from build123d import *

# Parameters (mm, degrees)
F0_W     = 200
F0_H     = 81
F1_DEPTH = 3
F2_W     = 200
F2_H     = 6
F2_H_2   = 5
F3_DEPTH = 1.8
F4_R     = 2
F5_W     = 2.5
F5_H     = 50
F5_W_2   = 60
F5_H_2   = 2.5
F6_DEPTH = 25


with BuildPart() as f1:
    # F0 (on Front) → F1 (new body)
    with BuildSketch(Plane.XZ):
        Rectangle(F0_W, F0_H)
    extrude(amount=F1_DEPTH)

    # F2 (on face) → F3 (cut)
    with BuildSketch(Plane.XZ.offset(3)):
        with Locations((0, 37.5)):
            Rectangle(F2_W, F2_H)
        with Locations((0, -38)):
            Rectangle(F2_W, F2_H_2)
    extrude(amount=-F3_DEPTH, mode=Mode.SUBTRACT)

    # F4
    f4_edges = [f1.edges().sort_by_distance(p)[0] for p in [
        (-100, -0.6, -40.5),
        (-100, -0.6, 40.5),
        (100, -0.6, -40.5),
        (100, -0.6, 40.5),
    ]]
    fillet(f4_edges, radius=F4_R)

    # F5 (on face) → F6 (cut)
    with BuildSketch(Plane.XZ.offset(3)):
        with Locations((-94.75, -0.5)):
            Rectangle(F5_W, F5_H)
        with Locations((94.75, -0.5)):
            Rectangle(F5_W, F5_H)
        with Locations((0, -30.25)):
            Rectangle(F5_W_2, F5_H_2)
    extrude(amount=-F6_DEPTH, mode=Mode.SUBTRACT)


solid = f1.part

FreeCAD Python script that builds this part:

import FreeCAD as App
import Part
import Sketcher

V = App.Vector
Q = App.Units.Quantity


def edges_at(feature, points):
    """Names of the edges that pass closest to the given points."""
    edges = feature.Shape.Edges
    near = lambda p: min(range(len(edges)), key=lambda i: edges[i].distToShape(Part.Vertex(*p))[0])
    return sorted({f"Edge{near(p) + 1}" for p in points})

doc = App.newDocument("Part")
params = doc.addObject("Spreadsheet::Sheet", "Params")
for row, (alias, value) in enumerate([
    ("sketch1_width", "200 mm"),
    ("sketch1_height", "81 mm"),
    ("pad1_length", "3 mm"),
    ("sketch2_width", "200 mm"),
    ("sketch2_height", "6 mm"),
    ("sketch2_height2", "5 mm"),
    ("pocket1_length", "1.8 mm"),
    ("fillet_radius", "2 mm"),
    ("sketch3_width", "60 mm"),
    ("sketch3_height", "50 mm"),
    ("sketch3_width2", "2.5 mm"),
    ("pocket2_length", "25 mm"),
], start=1):
    params.set(f"A{row}", alias)
    params.set(f"B{row}", "=" + value)
    params.setAlias(f"B{row}", alias)

body = doc.addObject("PartDesign::Body", "Body")

# Sketch on XZ plane
sketch1 = body.newObject("Sketcher::SketchObject", "Sketch")
sketch1.AttachmentSupport = (doc.getObject("XZ_Plane"), [""])
sketch1.MapMode = "FlatFace"
sketch1.addGeometry([
    Part.LineSegment(V(-100, 40.5, 0), V(-100, -40.5, 0)),
    Part.LineSegment(V(-100, -40.5, 0), V(100, -40.5, 0)),
    Part.LineSegment(V(100, -40.5, 0), V(100, 40.5, 0)),
    Part.LineSegment(V(100, 40.5, 0), V(-100, 40.5, 0)),
], False)
sketch1.addConstraint([
    Sketcher.Constraint("Coincident", 0, 2, 1, 1),
    Sketcher.Constraint("Coincident", 1, 2, 2, 1),
    Sketcher.Constraint("Coincident", 2, 2, 3, 1),
    Sketcher.Constraint("Coincident", 3, 2, 0, 1),
    Sketcher.Constraint("Vertical", 0),
    Sketcher.Constraint("Horizontal", 1),
    Sketcher.Constraint("Vertical", 2),
    Sketcher.Constraint("Horizontal", 3),
    Sketcher.Constraint("Symmetric", 0, 2, 2, 2, -1, 1),
    Sketcher.Constraint("DistanceX", 1, 1, 1, 2, Q("200 mm")),
    Sketcher.Constraint("DistanceY", 0, 2, 0, 1, Q("81 mm")),
])
sketch1.setExpression("Constraints[9]", "Params.sketch1_width")
sketch1.setExpression("Constraints[10]", "Params.sketch1_height")
pad1 = body.newObject("PartDesign::Pad", "Pad")
pad1.Profile = sketch1
pad1.setExpression("Length", "Params.pad1_length")

# Sketch on XZ plane
sketch2 = body.newObject("Sketcher::SketchObject", "Sketch001")
sketch2.AttachmentSupport = (doc.getObject("XZ_Plane"), [""])
sketch2.MapMode = "FlatFace"
sketch2.AttachmentOffset = App.Placement(V(0, 0, 3), App.Rotation())
sketch2.addGeometry([
    Part.LineSegment(V(-100, 40.5, 0), V(-100, 34.5, 0)),  # 0
    Part.LineSegment(V(-100, 34.5, 0), V(100, 34.5, 0)),  # 1
    Part.LineSegment(V(100, 34.5, 0), V(100, 40.5, 0)),  # 2
    Part.LineSegment(V(100, 40.5, 0), V(-100, 40.5, 0)),  # 3
    Part.LineSegment(V(-100, -35.5, 0), V(-100, -40.5, 0)),  # 4
    Part.LineSegment(V(-100, -40.5, 0), V(100, -40.5, 0)),  # 5
    Part.LineSegment(V(100, -40.5, 0), V(100, -35.5, 0)),  # 6
    Part.LineSegment(V(100, -35.5, 0), V(-100, -35.5, 0)),  # 7
], False)
sketch2.addConstraint([
    Sketcher.Constraint("Coincident", 0, 2, 1, 1),
    Sketcher.Constraint("Coincident", 1, 2, 2, 1),
    Sketcher.Constraint("Coincident", 2, 2, 3, 1),
    Sketcher.Constraint("Coincident", 3, 2, 0, 1),
    Sketcher.Constraint("Coincident", 4, 2, 5, 1),
    Sketcher.Constraint("Coincident", 5, 2, 6, 1),
    Sketcher.Constraint("Coincident", 6, 2, 7, 1),
    Sketcher.Constraint("Coincident", 7, 2, 4, 1),
    Sketcher.Constraint("Vertical", 0),
    Sketcher.Constraint("Horizontal", 1),
    Sketcher.Constraint("Vertical", 2),
    Sketcher.Constraint("Horizontal", 3),
    Sketcher.Constraint("Vertical", 4),
    Sketcher.Constraint("Horizontal", 5),
    Sketcher.Constraint("Vertical", 6),
    Sketcher.Constraint("Horizontal", 7),
    Sketcher.Constraint("Symmetric", 2, 2, 4, 2, -1, 1),
    Sketcher.Constraint("Vertical", 3, 2, 4, 2),
    Sketcher.Constraint("Vertical", 2, 2, 5, 2),
    Sketcher.Constraint("DistanceX", 1, 1, 1, 2, Q("200 mm")),
    Sketcher.Constraint("DistanceY", 0, 2, 0, 1, Q("6 mm")),
    Sketcher.Constraint("DistanceY", 4, 2, 4, 1, Q("5 mm")),
    Sketcher.Constraint("DistanceY", 4, 2, 0, 2, Q("75 mm")),
])
sketch2.setExpression("Constraints[19]", "Params.sketch2_width")
sketch2.setExpression("Constraints[20]", "Params.sketch2_height")
sketch2.setExpression("Constraints[21]", "Params.sketch2_height2")
pocket1 = body.newObject("PartDesign::Pocket", "Pocket")
pocket1.Profile = sketch2
pocket1.setExpression("Length", "Params.pocket1_length")
doc.recompute()

fillet = body.newObject("PartDesign::Fillet", "Fillet")
fillet.Base = (pocket1, edges_at(pocket1, [
    (-100, -0.6, -40.5),
    (-100, -0.6, 40.5),
    (100, -0.6, -40.5),
    (100, -0.6, 40.5),
]))
fillet.setExpression("Radius", "Params.fillet_radius")

# Sketch on XZ plane
sketch3 = body.newObject("Sketcher::SketchObject", "Sketch002")
sketch3.AttachmentSupport = (doc.getObject("XZ_Plane"), [""])
sketch3.MapMode = "FlatFace"
sketch3.AttachmentOffset = App.Placement(V(0, 0, 3), App.Rotation())
sketch3.addGeometry([
    Part.LineSegment(V(-96, 24.5, 0), V(-96, -25.5, 0)),  # 0
    Part.LineSegment(V(-96, -25.5, 0), V(-93.5, -25.5, 0)),  # 1
    Part.LineSegment(V(-93.5, -25.5, 0), V(-93.5, 24.5, 0)),  # 2
    Part.LineSegment(V(-93.5, 24.5, 0), V(-96, 24.5, 0)),  # 3
    Part.LineSegment(V(93.5, 24.5, 0), V(93.5, -25.5, 0)),  # 4
    Part.LineSegment(V(93.5, -25.5, 0), V(96, -25.5, 0)),  # 5
    Part.LineSegment(V(96, -25.5, 0), V(96, 24.5, 0)),  # 6
    Part.LineSegment(V(96, 24.5, 0), V(93.5, 24.5, 0)),  # 7
    Part.LineSegment(V(-30, -29, 0), V(-30, -31.5, 0)),  # 8
    Part.LineSegment(V(-30, -31.5, 0), V(30, -31.5, 0)),  # 9
    Part.LineSegment(V(30, -31.5, 0), V(30, -29, 0)),  # 10
    Part.LineSegment(V(30, -29, 0), V(-30, -29, 0)),  # 11
], False)
sketch3.addConstraint([
    Sketcher.Constraint("Coincident", 0, 2, 1, 1),
    Sketcher.Constraint("Coincident", 1, 2, 2, 1),
    Sketcher.Constraint("Coincident", 2, 2, 3, 1),
    Sketcher.Constraint("Coincident", 3, 2, 0, 1),
    Sketcher.Constraint("Coincident", 4, 2, 5, 1),
    Sketcher.Constraint("Coincident", 5, 2, 6, 1),
    Sketcher.Constraint("Coincident", 6, 2, 7, 1),
    Sketcher.Constraint("Coincident", 7, 2, 4, 1),
    Sketcher.Constraint("Coincident", 8, 2, 9, 1),
    Sketcher.Constraint("Coincident", 9, 2, 10, 1),
    Sketcher.Constraint("Coincident", 10, 2, 11, 1),
    Sketcher.Constraint("Coincident", 11, 2, 8, 1),
    Sketcher.Constraint("Vertical", 0),
    Sketcher.Constraint("Horizontal", 1),
    Sketcher.Constraint("Vertical", 2),
    Sketcher.Constraint("Horizontal", 3),
    Sketcher.Constraint("Vertical", 4),
    Sketcher.Constraint("Horizontal", 5),
    Sketcher.Constraint("Vertical", 6),
    Sketcher.Constraint("Horizontal", 7),
    Sketcher.Constraint("Vertical", 8),
    Sketcher.Constraint("Horizontal", 9),
    Sketcher.Constraint("Vertical", 10),
    Sketcher.Constraint("Horizontal", 11),
    Sketcher.Constraint("Symmetric", 1, 2, 4, 2, -2),
    Sketcher.Constraint("Symmetric", 3, 2, 6, 2, -2),
    Sketcher.Constraint("Equal", 7, 8),
    Sketcher.Constraint("DistanceX", 9, 1, 9, 2, Q("60 mm")),
    Sketcher.Constraint("DistanceY", 0, 2, 0, 1, Q("50 mm")),
    Sketcher.Constraint("DistanceX", 1, 1, 1, 2, Q("2.5 mm")),
    Sketcher.Constraint("DistanceX", 0, 2, -1, 1, Q("96 mm")),
    Sketcher.Constraint("DistanceX", 8, 2, -1, 1, Q("30 mm")),
    Sketcher.Constraint("DistanceY", 10, 2, -1, 1, Q("29 mm")),
    Sketcher.Constraint("DistanceY", 8, 2, 1, 2, Q("6 mm")),
])
sketch3.setExpression("Constraints[27]", "Params.sketch3_width")
sketch3.setExpression("Constraints[28]", "Params.sketch3_height")
sketch3.setExpression("Constraints[29]", "Params.sketch3_width2")
pocket2 = body.newObject("PartDesign::Pocket", "Pocket001")
pocket2.Profile = sketch3
pocket2.setExpression("Length", "Params.pocket2_length")

doc.recompute()
